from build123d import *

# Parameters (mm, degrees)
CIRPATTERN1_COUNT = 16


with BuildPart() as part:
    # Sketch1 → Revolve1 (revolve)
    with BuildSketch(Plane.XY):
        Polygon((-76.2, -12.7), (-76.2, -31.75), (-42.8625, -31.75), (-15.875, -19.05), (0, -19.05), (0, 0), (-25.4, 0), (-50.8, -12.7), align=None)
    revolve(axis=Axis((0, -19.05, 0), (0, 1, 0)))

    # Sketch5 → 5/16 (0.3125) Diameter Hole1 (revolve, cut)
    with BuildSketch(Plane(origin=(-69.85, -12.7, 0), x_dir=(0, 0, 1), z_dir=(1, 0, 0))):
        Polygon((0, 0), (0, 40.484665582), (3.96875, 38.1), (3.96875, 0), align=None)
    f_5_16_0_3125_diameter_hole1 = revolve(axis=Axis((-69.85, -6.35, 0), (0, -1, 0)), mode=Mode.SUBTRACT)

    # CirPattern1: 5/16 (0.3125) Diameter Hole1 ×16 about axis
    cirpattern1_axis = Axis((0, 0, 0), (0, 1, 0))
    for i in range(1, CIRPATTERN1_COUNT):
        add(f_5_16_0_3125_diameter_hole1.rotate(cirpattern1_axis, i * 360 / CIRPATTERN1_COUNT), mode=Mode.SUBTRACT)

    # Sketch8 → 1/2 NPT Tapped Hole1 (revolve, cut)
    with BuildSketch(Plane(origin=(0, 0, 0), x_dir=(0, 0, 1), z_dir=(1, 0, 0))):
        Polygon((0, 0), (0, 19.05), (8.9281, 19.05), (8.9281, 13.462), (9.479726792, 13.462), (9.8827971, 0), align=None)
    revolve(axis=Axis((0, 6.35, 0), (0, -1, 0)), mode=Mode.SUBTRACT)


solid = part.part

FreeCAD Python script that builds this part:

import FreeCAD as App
import Part
import Sketcher

V = App.Vector
Q = App.Units.Quantity

doc = App.newDocument("Part")
params = doc.addObject("Spreadsheet::Sheet", "Params")
for row, (alias, value) in enumerate([
    ("sketch1_width", "1 in"),
    ("sketch1_height", "0.75 in"),
    ("sketch1_width2", "1.3125 in"),
    ("sketch1_width3", "0.625 in"),
    ("revolution_angle", "360 deg"),
    ("sketch2_width", "1.5 in"),
    ("sketch2_height", "0.15625 in"),
    ("groove_angle", "360 deg"),
    ("sketch3_width", "0.75 in"),
    ("sketch3_width2", "0.22 in"),
    ("groove2_angle", "360 deg"),
], start=1):
    params.set(f"A{row}", alias)
    params.set(f"B{row}", "=" + value)
    params.setAlias(f"B{row}", alias)

body = doc.addObject("PartDesign::Body", "Body")

# Sketch on XY plane
sketch1 = body.newObject("Sketcher::SketchObject", "Sketch")
sketch1.AttachmentSupport = (doc.getObject("XY_Plane"), [""])
sketch1.MapMode = "FlatFace"
sketch1.addGeometry(Part.LineSegment(V(-76, -13, 0), V(-76, -32, 0)), False)
sketch1.addGeometry(Part.LineSegment(V(-76, -32, 0), V(-43, -32, 0)), False)
sketch1.addGeometry(Part.LineSegment(V(-43, -32, 0), V(-16, -19, 0)), False)
sketch1.addGeometry(Part.LineSegment(V(-16, -19, 0), V(0, -19, 0)), False)
sketch1.addGeometry(Part.LineSegment(V(0, -19, 0), V(0, 0, 0)), False)
sketch1.addGeometry(Part.LineSegment(V(0, 0, 0), V(-25, 0, 0)), False)
sketch1.addGeometry(Part.LineSegment(V(-25, 0, 0), V(-51, -13, 0)), False)
sketch1.addGeometry(Part.LineSegment(V(-51, -13, 0), V(-76, -13, 0)), False)
sketch1.addConstraint(Sketcher.Constraint("Coincident", 0, 2, 1, 1))
sketch1.addConstraint(Sketcher.Constraint("Coincident", 1, 2, 2, 1))
sketch1.addConstraint(Sketcher.Constraint("Coincident", 2, 2, 3, 1))
sketch1.addConstraint(Sketcher.Constraint("Coincident", 3, 2, 4, 1))
sketch1.addConstraint(Sketcher.Constraint("Coincident", 4, 2, 5, 1))
sketch1.addConstraint(Sketcher.Constraint("Coincident", 5, 2, 6, 1))
sketch1.addConstraint(Sketcher.Constraint("Coincident", 6, 2, 7, 1))
sketch1.addConstraint(Sketcher.Constraint("Coincident", 7, 2, 0, 1))
sketch1.addConstraint(Sketcher.Constraint("Vertical", 0))
sketch1.addConstraint(Sketcher.Constraint("Horizontal", 1))
sketch1.addConstraint(Sketcher.Constraint("Horizontal", 3))
sketch1.addConstraint(Sketcher.Constraint("Vertical", 4))
sketch1.addConstraint(Sketcher.Constraint("Horizontal", 5))
sketch1.addConstraint(Sketcher.Constraint("Horizontal", 7))
sketch1.addConstraint(Sketcher.Constraint("Coincident", 4, 2, -1, 1))
sketch1.addConstraint(Sketcher.Constraint("Equal", 5, 7))
sketch1.addConstraint(Sketcher.Constraint("Equal", 0, 4))
sketch1.addConstraint(Sketcher.Constraint("DistanceX", 5, 2, 5, 1, Q("1 in")))
sketch1.addConstraint(Sketcher.Constraint("DistanceX", 0, 2, -1, 1, Q("3 in")))
sketch1.addConstraint(Sketcher.Constraint("DistanceY", 0, 2, 0, 1, Q("0.75 in")))
sketch1.addConstraint(Sketcher.Constraint("DistanceY", 6, 2, -1, 1, Q("0.5 in")))
sketch1.addConstraint(Sketcher.Constraint("DistanceX", 1, 1, 1, 2, Q("1.3125 in")))
sketch1.addConstraint(Sketcher.Constraint("DistanceX", 3, 1, 3, 2, Q("0.625 in")))
sketch1.setExpression("Constraints[17]", "Params.sketch1_width")
sketch1.setExpression("Constraints[19]", "Params.sketch1_height")
sketch1.setExpression("Constraints[21]", "Params.sketch1_width2")
sketch1.setExpression("Constraints[22]", "Params.sketch1_width3")
revolution = body.newObject("PartDesign::Revolution", "Revolution")
revolution.Profile = sketch1
revolution.ReferenceAxis = (sketch1, ["V_Axis"])
revolution.setExpression("Angle", "Params.revolution_angle")

# Sketch on YZ plane
sketch2 = body.newObject("Sketcher::SketchObject", "Sketch001")
sketch2.AttachmentSupport = (doc.getObject("YZ_Plane"), [""])
sketch2.MapMode = "FlatFace"
sketch2.AttachmentOffset = App.Placement(V(0, 0, -2.75 * 25.4), App.Rotation())
sketch2.addGeometry(Part.LineSegment(V(-53.2, 0, 0), V(-12.7, 0, 0)), False)
sketch2.addGeometry(Part.LineSegment(V(-12.7, 0, 0), V(-12.7, 4, 0)), False)
sketch2.addGeometry(Part.LineSegment(V(-12.7, 4, 0), V(-50.8, 4, 0)), False)
sketch2.addGeometry(Part.LineSegment(V(-50.8, 4, 0), V(-53.2, 0, 0)), False)
sketch2.addConstraint(Sketcher.Constraint("Coincident", 0, 2, 1, 1))
sketch2.addConstraint(Sketcher.Constraint("Coincident", 1, 2, 2, 1))
sketch2.addConstraint(Sketcher.Constraint("Coincident", 2, 2, 3, 1))
sketch2.addConstraint(Sketcher.Constraint("Coincident", 3, 2, 0, 1))
sketch2.addConstraint(Sketcher.Constraint("Horizontal", 0))
sketch2.addConstraint(Sketcher.Constraint("Vertical", 1))
sketch2.addConstraint(Sketcher.Constraint("Horizontal", 2))
sketch2.addConstraint(Sketcher.Constraint("PointOnObject", 0, 2, -1))
sketch2.addConstraint(Sketcher.Constraint("DistanceX", 2, 2, 2, 1, Q("1.5 in")))
sketch2.addConstraint(Sketcher.Constraint("DistanceX", 2, 2, -1, 1, Q("2 in")))
sketch2.addConstraint(Sketcher.Constraint("Angle", 3, Q("-121 deg")))
sketch2.addConstraint(Sketcher.Constraint("DistanceY", 1, 1, 1, 2, Q("0.15625 in")))
sketch2.setExpression("Constraints[8]", "Params.sketch2_width")
sketch2.setExpression("Constraints[11]", "Params.sketch2_height")
groove = body.newObject("PartDesign::Groove", "Groove")
groove.Profile = sketch2
groove.ReferenceAxis = (sketch2, ["H_Axis"])
groove.setExpression("Angle", "Params.groove_angle")
doc.recompute()

polarpattern = body.newObject("PartDesign::PolarPattern", "PolarPattern")
polarpattern.Originals = [groove]
polarpattern.Axis = (doc.getObject("Y_Axis"), [""])
polarpattern.Angle = 360
polarpattern.Occurrences = 16
body.Tip = polarpattern

# Sketch on YZ plane
sketch3 = body.newObject("Sketcher::SketchObject", "Sketch002")
sketch3.AttachmentSupport = (doc.getObject("YZ_Plane"), [""])
sketch3.MapMode = "FlatFace"
sketch3.addGeometry(Part.LineSegment(V(-19.1, 0, 0), V(0, 0, 0)), False)
sketch3.addGeometry(Part.LineSegment(V(0, 0, 0), V(0, 9.9, 0)), False)
sketch3.addGeometry(Part.LineSegment(V(0, 9.9, 0), V(-13.5, 9.5, 0)), False)
sketch3.addGeometry(Part.LineSegment(V(-13.5, 9.5, 0), V(-13.5, 8.9, 0)), False)
sketch3.addGeometry(Part.LineSegment(V(-13.5, 8.9, 0), V(-19.1, 8.9, 0)), False)
sketch3.addGeometry(Part.LineSegment(V(-19.1, 8.9, 0), V(-19.1, 0, 0)), False)
sketch3.addConstraint(Sketcher.Constraint("Coincident", 0, 2, 1, 1))
sketch3.addConstraint(Sketcher.Constraint("Coincident", 1, 2, 2, 1))
sketch3.addConstraint(Sketcher.Constraint("Coincident", 2, 2, 3, 1))
sketch3.addConstraint(Sketcher.Constraint("Coincident", 3, 2, 4, 1))
sketch3.addConstraint(Sketcher.Constraint("Coincident", 4, 2, 5, 1))
sketch3.addConstraint(Sketcher.Constraint("Coincident", 5, 2, 0, 1))
sketch3.addConstraint(Sketcher.Constraint("Horizontal", 0))
sketch3.addConstraint(Sketcher.Constraint("Vertical", 1))
sketch3.addConstraint(Sketcher.Constraint("Vertical", 3))
sketch3.addConstraint(Sketcher.Constraint("Horizontal", 4))
sketch3.addConstraint(Sketcher.Constraint("Vertical", 5))
sketch3.addConstraint(Sketcher.Constraint("Coincident", 0, 2, -1, 1))
sketch3.addConstraint(Sketcher.Constraint("DistanceX", 0, 1, 0, 2, Q("0.75 in")))
sketch3.addConstraint(Sketcher.Constraint("DistanceX", 4, 2, 4, 1, Q("0.22 in")))
sketch3.addConstraint(Sketcher.Constraint("DistanceY", 5, 2, 5, 1, Q("0.3515 in")))
sketch3.addConstraint(Sketcher.Constraint("DistanceY", 1, 1, 1, 2, 9.882797))
sketch3.addConstraint(Sketcher.Constraint("DistanceY", 3, 2, 3, 1, 0.551627))
sketch3.setExpression("Constraints[12]", "Params.sketch3_width")
sketch3.setExpression("Constraints[13]", "Params.sketch3_width2")
groove2 = body.newObject("PartDesign::Groove", "Groove001")
groove2.Profile = sketch3
groove2.ReferenceAxis = (sketch3, ["H_Axis"])
groove2.setExpression("Angle", "Params.groove2_angle")

doc.recompute()
